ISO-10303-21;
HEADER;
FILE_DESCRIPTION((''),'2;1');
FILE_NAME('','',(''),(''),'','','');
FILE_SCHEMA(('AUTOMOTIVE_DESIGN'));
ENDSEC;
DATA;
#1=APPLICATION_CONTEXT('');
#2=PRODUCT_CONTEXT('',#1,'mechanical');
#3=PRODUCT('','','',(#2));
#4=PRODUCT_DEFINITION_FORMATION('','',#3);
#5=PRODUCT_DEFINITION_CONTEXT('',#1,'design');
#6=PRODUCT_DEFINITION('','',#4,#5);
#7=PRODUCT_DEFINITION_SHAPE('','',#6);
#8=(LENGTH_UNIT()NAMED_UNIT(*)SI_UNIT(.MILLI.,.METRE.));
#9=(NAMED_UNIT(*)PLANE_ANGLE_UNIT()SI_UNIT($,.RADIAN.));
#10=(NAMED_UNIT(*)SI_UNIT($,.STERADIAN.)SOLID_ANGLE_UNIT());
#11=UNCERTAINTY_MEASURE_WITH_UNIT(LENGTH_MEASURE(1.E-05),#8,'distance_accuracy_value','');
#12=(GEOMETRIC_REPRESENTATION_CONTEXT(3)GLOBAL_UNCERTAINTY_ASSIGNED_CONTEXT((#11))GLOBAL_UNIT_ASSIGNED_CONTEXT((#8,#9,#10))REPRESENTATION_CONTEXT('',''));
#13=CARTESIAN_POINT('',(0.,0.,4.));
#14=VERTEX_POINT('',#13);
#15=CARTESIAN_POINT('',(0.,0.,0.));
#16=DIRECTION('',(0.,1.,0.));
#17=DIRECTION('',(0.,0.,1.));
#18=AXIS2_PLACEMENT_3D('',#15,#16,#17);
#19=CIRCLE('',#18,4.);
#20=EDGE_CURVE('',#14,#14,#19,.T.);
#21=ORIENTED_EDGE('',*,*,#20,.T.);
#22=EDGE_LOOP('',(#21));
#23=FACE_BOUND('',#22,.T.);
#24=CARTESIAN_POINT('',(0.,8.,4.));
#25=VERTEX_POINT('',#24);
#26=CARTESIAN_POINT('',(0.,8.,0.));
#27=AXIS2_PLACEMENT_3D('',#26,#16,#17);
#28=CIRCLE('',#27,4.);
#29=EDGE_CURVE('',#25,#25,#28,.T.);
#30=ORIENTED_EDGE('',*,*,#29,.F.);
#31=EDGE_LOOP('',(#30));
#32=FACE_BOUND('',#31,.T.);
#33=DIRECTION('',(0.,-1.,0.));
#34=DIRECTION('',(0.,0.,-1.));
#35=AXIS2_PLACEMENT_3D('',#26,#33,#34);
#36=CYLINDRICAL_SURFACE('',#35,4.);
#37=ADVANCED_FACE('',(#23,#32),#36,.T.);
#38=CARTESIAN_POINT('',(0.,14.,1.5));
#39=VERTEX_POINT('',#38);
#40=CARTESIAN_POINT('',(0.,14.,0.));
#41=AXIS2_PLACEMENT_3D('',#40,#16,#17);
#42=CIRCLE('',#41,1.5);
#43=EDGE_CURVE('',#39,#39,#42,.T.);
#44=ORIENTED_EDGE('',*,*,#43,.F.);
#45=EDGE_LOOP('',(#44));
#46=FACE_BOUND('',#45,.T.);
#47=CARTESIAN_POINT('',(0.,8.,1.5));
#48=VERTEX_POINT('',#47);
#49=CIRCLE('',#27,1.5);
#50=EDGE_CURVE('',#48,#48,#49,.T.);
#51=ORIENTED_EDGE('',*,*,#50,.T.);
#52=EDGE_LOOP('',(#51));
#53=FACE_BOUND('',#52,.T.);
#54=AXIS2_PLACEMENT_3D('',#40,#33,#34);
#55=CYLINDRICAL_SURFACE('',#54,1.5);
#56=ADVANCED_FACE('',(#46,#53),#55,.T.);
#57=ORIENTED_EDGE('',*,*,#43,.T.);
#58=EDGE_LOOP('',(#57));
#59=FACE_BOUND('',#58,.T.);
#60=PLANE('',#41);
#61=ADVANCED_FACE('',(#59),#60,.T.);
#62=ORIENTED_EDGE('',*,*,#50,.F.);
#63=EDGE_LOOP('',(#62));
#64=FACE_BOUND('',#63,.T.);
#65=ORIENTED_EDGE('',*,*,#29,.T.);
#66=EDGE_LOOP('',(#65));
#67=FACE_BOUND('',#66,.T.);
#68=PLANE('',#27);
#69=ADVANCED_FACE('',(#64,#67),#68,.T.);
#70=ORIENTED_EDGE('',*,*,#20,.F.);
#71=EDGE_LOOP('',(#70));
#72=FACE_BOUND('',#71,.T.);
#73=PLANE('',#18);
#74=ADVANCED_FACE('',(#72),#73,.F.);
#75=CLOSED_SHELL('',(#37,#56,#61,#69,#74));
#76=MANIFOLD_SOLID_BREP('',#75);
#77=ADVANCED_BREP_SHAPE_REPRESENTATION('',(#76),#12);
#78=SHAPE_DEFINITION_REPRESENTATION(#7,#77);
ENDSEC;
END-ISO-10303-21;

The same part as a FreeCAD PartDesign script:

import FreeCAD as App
import Part
import Sketcher
from FreeCAD import Vector
Q = App.Units.Quantity

doc = App.newDocument("Part")
body = doc.addObject("PartDesign::Body", "Body")

# Sketch on XZ plane
sketch1 = doc.addObject("Sketcher::SketchObject", "Sketch")
body.addObject(sketch1)
sketch1.AttachmentSupport = (doc.XZ_Plane, [""])
sketch1.MapMode = "FlatFace"
sketch1.addGeometry(Part.Circle(Vector(0, 0, 0), Vector(0, 0, 1), 4), False)
sketch1.addConstraint(Sketcher.Constraint("Coincident", 0, 3, -1, 1))
sketch1.addConstraint(Sketcher.Constraint("Diameter", 0, Q("8 mm")))
pad1 = doc.addObject("PartDesign::Pad", "Pad")
body.addObject(pad1)
pad1.Profile = sketch1
pad1.Length = 8
pad1.Reversed = True

# Sketch on XZ plane
sketch2 = doc.addObject("Sketcher::SketchObject", "Sketch001")
body.addObject(sketch2)
sketch2.AttachmentSupport = (doc.XZ_Plane, [""])
sketch2.MapMode = "FlatFace"
sketch2.AttachmentOffset = App.Placement(Vector(0, 0, -8), App.Rotation())
sketch2.addGeometry(Part.Circle(Vector(0, 0, 0), Vector(0, 0, 1), 1.5), False)
sketch2.addConstraint(Sketcher.Constraint("Coincident", 0, 3, -1, 1))
sketch2.addConstraint(Sketcher.Constraint("Diameter", 0, Q("3 mm")))
pad2 = doc.addObject("PartDesign::Pad", "Pad001")
body.addObject(pad2)
pad2.Profile = sketch2
pad2.Length = 6
pad2.Reversed = True

doc.recompute()
